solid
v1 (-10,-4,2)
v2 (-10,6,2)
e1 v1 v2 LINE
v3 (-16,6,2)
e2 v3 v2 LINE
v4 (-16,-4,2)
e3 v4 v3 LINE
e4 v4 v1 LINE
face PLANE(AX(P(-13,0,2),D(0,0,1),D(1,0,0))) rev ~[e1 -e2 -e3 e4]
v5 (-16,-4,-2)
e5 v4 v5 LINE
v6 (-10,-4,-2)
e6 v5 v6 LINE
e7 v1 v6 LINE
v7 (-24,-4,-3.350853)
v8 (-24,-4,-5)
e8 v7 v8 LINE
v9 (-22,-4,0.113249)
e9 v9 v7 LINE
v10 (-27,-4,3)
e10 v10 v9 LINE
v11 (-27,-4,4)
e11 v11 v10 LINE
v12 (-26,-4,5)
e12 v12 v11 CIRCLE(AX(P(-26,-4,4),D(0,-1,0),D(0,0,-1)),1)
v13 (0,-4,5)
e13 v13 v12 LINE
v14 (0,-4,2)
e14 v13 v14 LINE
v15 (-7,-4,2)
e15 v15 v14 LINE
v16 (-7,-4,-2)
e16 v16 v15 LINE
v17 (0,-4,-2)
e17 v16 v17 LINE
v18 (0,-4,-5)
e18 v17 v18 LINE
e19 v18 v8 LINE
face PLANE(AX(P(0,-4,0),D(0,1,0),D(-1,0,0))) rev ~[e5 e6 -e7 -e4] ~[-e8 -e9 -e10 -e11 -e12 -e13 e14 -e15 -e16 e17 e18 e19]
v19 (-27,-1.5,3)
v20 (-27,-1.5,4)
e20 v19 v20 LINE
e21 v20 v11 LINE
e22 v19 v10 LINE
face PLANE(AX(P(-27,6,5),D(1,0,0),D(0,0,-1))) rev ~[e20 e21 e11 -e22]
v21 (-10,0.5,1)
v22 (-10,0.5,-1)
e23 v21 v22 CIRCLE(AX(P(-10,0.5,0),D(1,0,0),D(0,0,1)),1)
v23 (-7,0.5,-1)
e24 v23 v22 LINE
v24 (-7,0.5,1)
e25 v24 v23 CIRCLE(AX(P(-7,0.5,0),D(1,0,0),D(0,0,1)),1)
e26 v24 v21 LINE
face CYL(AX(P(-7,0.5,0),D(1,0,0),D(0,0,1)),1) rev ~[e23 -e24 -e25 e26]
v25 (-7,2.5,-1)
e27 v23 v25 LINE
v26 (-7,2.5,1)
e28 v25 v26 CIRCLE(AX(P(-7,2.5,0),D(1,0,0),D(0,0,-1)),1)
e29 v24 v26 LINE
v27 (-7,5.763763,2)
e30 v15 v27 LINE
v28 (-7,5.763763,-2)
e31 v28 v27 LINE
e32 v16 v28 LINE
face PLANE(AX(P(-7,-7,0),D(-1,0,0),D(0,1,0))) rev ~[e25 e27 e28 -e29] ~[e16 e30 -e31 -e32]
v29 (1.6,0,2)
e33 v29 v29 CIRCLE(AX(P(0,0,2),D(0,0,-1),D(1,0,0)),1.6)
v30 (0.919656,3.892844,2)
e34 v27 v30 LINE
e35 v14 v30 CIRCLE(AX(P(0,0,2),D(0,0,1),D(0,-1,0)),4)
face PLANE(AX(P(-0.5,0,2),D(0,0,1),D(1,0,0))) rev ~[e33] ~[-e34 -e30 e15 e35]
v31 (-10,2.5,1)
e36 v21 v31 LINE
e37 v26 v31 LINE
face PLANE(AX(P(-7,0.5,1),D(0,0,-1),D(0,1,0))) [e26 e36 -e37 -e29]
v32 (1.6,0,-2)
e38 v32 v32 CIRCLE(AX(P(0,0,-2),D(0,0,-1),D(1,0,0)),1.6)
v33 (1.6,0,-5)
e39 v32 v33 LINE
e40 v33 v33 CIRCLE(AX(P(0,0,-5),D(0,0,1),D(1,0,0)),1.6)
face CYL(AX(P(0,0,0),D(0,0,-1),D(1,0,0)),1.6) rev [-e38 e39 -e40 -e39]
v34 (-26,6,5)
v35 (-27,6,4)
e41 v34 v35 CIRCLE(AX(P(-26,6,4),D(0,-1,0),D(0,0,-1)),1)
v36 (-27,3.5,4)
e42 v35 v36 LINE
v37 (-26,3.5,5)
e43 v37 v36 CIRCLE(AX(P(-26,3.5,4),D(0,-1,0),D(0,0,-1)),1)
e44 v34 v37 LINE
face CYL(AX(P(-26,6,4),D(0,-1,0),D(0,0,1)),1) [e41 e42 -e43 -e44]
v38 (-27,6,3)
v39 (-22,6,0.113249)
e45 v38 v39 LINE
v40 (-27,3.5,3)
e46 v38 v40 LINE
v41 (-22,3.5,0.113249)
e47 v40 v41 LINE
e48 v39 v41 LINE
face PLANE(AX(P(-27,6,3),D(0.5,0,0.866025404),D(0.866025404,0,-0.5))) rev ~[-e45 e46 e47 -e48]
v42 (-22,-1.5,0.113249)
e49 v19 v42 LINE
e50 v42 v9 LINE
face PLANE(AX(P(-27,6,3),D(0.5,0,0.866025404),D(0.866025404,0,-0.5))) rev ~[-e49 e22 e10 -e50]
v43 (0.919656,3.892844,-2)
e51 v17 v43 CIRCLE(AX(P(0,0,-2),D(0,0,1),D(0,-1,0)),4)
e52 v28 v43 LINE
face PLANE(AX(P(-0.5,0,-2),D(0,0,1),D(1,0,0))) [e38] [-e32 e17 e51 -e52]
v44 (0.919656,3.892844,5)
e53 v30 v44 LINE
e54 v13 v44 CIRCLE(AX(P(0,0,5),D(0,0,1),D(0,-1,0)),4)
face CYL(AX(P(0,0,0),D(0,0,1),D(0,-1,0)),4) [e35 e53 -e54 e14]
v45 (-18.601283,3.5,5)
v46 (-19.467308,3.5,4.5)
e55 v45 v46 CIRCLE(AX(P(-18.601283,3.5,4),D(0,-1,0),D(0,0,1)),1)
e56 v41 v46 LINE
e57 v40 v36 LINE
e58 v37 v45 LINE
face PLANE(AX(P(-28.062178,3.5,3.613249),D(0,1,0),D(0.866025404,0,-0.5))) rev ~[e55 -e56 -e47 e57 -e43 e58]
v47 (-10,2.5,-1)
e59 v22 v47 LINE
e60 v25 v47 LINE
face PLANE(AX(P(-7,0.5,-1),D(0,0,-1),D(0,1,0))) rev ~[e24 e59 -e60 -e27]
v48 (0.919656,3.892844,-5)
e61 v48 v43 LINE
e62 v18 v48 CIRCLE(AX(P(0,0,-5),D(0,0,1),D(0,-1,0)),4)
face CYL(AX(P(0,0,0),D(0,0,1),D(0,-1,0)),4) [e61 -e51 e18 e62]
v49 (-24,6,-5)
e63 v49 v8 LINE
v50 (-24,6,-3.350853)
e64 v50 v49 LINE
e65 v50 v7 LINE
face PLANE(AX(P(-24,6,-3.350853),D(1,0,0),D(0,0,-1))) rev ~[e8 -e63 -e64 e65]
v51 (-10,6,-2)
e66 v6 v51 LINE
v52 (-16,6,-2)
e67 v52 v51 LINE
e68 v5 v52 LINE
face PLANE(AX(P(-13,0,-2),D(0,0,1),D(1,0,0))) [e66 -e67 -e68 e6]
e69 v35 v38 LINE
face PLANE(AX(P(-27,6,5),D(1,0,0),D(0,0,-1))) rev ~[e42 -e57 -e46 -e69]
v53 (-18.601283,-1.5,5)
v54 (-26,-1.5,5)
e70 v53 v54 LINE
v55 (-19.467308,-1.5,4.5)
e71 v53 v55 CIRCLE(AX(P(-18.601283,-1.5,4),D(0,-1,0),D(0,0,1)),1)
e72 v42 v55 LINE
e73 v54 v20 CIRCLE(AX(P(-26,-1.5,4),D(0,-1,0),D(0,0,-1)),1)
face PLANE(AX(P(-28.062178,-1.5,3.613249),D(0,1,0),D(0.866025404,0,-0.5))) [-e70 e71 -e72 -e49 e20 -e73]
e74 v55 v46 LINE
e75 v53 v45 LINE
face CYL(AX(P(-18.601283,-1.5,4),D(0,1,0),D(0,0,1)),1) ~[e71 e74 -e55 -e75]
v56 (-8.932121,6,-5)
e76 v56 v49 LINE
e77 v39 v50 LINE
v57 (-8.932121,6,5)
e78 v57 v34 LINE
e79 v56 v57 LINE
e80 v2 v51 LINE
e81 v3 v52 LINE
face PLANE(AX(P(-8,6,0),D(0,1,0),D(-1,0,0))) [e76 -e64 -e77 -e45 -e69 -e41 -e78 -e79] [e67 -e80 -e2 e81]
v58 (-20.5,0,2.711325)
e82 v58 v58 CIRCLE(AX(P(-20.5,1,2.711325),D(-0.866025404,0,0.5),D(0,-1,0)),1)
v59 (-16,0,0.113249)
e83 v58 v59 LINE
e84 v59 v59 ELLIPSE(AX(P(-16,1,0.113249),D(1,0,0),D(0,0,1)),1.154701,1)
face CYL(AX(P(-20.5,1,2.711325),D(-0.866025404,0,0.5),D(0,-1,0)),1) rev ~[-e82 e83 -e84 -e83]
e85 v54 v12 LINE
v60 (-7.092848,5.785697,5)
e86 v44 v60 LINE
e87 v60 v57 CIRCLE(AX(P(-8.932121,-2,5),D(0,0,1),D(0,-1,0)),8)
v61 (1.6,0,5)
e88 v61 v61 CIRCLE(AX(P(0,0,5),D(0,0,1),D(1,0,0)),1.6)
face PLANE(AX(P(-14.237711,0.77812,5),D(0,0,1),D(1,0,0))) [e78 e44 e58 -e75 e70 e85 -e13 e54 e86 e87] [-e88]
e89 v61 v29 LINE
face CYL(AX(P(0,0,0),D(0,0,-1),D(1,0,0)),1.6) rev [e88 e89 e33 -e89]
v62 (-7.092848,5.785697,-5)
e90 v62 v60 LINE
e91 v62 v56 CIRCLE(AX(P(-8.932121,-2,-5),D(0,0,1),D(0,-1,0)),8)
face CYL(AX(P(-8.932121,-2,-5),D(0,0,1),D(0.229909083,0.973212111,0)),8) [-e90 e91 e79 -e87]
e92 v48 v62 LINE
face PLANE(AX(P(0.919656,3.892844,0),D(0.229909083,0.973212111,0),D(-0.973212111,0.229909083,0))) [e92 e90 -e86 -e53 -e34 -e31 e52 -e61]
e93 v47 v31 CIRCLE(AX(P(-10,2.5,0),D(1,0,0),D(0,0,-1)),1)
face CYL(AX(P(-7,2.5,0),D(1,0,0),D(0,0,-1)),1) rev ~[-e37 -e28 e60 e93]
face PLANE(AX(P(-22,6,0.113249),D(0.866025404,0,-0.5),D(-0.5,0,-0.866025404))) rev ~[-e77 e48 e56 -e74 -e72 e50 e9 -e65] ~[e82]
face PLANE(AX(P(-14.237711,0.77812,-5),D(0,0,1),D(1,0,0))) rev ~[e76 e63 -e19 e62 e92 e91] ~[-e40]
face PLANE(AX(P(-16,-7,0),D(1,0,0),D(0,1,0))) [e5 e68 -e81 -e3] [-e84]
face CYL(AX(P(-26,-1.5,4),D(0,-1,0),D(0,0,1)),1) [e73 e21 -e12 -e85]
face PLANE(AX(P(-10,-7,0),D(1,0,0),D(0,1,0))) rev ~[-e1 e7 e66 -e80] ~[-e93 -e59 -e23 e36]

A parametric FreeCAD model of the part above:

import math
import FreeCAD as App
import Part
import Sketcher
from FreeCAD import Vector
Q = App.Units.Quantity


def edges_at(feature, points):
    """Names of the edges that pass closest to the given points."""
    edges = feature.Shape.Edges
    near = lambda p: min(range(len(edges)), key=lambda i: edges[i].distToShape(Part.Vertex(*p))[0])
    return sorted({f"Edge{near(p) + 1}" for p in points})


def add_polygon(sketch, points):
    """Adds a closed chain of lines whose ends are joined by coincident constraints."""
    first, n = sketch.GeometryCount, len(points)
    for a, b in zip(points, points[1:] + points[:1]):
        sketch.addGeometry(Part.LineSegment(App.Vector(*a, 0), App.Vector(*b, 0)), False)
    for i in range(n):
        sketch.addConstraint(Sketcher.Constraint("Coincident", first + i, 2, first + (i + 1) % n, 1))

doc = App.newDocument("Part")
params = doc.addObject("Spreadsheet::Sheet", "Params")
for row, (alias, value) in enumerate([
    ("sketch1_width", "13 mm"),
    ("sketch1_width2", "6 mm"),
    ("sketch1_height", "14 mm"),
    ("pad1_length", "4 mm"),
    ("sketch2_radius", "4 mm"),
    ("sketch2_diameter", "3.2 mm"),
    ("sketch2_width", "22 mm"),
    ("sketch2_width2", "30 mm"),
    ("sketch2_height", "10 mm"),
    ("pad2_length", "10 mm"),
    ("sketch3_width", "6 mm"),
    ("sketch3_width2", "3 mm"),
    ("sketch3_height", "10 mm"),
    ("sketch3_height2", "2 mm"),
    ("sketch3_length", "4 mm"),
    ("sketch4_width", "7 mm"),
    ("sketch4_height", "5 mm"),
    ("sketch5_diameter", "2 mm"),
    ("pocket3_length", "6 mm"),
    ("sketch6_radius", "1 mm"),
    ("sketch6_width", "2 mm"),
    ("pocket4_length", "3 mm"),
    ("fillet_radius", "8 mm"),
    ("fillet2_radius", "1 mm"),
    ("fillet3_radius", "1 mm"),
], start=1):
    params.set(f"A{row}", alias)
    params.set(f"B{row}", "=" + value)
    params.setAlias(f"B{row}", alias)

body = doc.addObject("PartDesign::Body", "Body")
body.AllowCompound = True

# Sketch on XY plane
sketch1 = body.newObject("Sketcher::SketchObject", "Sketch")
sketch1.AttachmentSupport = (doc.getObject("XY_Plane"), [""])
sketch1.MapMode = "FlatFace"
add_polygon(sketch1, [(-7, 7), (-7, -7), (6, -7), (6, 7)])  # lines 0-3
add_polygon(sketch1, [(-16, 7), (-16, -7), (-10, -7), (-10, 7)])  # lines 4-7
sketch1.addConstraint(Sketcher.Constraint("Vertical", 0))
sketch1.addConstraint(Sketcher.Constraint("Horizontal", 1))
sketch1.addConstraint(Sketcher.Constraint("Vertical", 2))
sketch1.addConstraint(Sketcher.Constraint("Horizontal", 3))
sketch1.addConstraint(Sketcher.Constraint("Vertical", 4))
sketch1.addConstraint(Sketcher.Constraint("Horizontal", 5))
sketch1.addConstraint(Sketcher.Constraint("Vertical", 6))
sketch1.addConstraint(Sketcher.Constraint("Horizontal", 7))
sketch1.addConstraint(Sketcher.Constraint("Horizontal", 1, 2, 4, 2))
sketch1.addConstraint(Sketcher.Constraint("Horizontal", 3, 2, 6, 2))
sketch1.addConstraint(Sketcher.Constraint("DistanceX", 1, 1, 1, 2, 13.0))
sketch1.addConstraint(Sketcher.Constraint("DistanceX", 5, 1, 5, 2, 6.0))
sketch1.addConstraint(Sketcher.Constraint("DistanceY", 0, 2, 0, 1, 14.0))
sketch1.addConstraint(Sketcher.Constraint("DistanceX", 0, 2, -1, 1, 7.0))
sketch1.addConstraint(Sketcher.Constraint("DistanceY", 0, 2, -1, 1, 7.0))
sketch1.addConstraint(Sketcher.Constraint("DistanceX", 4, 2, -1, 1, 16.0))
sketch1.setExpression("Constraints[18]", "Params.sketch1_width")
sketch1.setExpression("Constraints[19]", "Params.sketch1_width2")
sketch1.setExpression("Constraints[20]", "Params.sketch1_height")
pad1 = body.newObject("PartDesign::Pad", "Pad")
pad1.Profile = sketch1
pad1.setExpression("Length", "Params.pad1_length")
pad1.Midplane = True
body2 = doc.addObject("PartDesign::Body", "Body001")

# Sketch on XY plane
sketch2 = body2.newObject("Sketcher::SketchObject", "Sketch001")
sketch2.AttachmentSupport = (doc.getObject("XY_Plane001"), [""])
sketch2.MapMode = "FlatFace"
sketch2.addGeometry(Part.ArcOfCircle(Part.Circle(Vector(0, 0, 0), Vector(0, 0, 1), 4), math.radians(-90), math.radians(77)), False)
sketch2.addGeometry(Part.LineSegment(Vector(0.9, 3.9, 0), Vector(-8, 6, 0)), False)
sketch2.addGeometry(Part.LineSegment(Vector(-8, 6, 0), Vector(-30, 6, 0)), False)
sketch2.addGeometry(Part.LineSegment(Vector(-30, 6, 0), Vector(-30, -4, 0)), False)
sketch2.addGeometry(Part.LineSegment(Vector(-30, -4, 0), Vector(0, -4, 0)), False)
sketch2.addGeometry(Part.Circle(Vector(0, 0, 0), Vector(0, 0, 1), 1.6), False)
sketch2.addConstraint(Sketcher.Constraint("Coincident", 0, 2, 1, 1))
sketch2.addConstraint(Sketcher.Constraint("Coincident", 1, 2, 2, 1))
sketch2.addConstraint(Sketcher.Constraint("Coincident", 2, 2, 3, 1))
sketch2.addConstraint(Sketcher.Constraint("Coincident", 3, 2, 4, 1))
sketch2.addConstraint(Sketcher.Constraint("Tangent", 4, 2, 0, 1))
sketch2.addConstraint(Sketcher.Constraint("Horizontal", 2))
sketch2.addConstraint(Sketcher.Constraint("Vertical", 3))
sketch2.addConstraint(Sketcher.Constraint("Horizontal", 4))
sketch2.addConstraint(Sketcher.Constraint("Coincident", 0, 3, -1, 1))
sketch2.addConstraint(Sketcher.Constraint("Coincident", 5, 3, -1, 1))
sketch2.addConstraint(Sketcher.Constraint("Radius", 0, 4.0))
sketch2.addConstraint(Sketcher.Constraint("Diameter", 5, 3.2))
sketch2.addConstraint(Sketcher.Constraint("DistanceX", 2, 2, 2, 1, 22.0))
sketch2.addConstraint(Sketcher.Constraint("DistanceX", 4, 1, 4, 2, 30.0))
sketch2.addConstraint(Sketcher.Constraint("DistanceY", 3, 2, 3, 1, 10.0))
sketch2.addConstraint(Sketcher.Constraint("Distance", 1, 9.165171))
sketch2.setExpression("Constraints[10]", "Params.sketch2_radius")
sketch2.setExpression("Constraints[11]", "Params.sketch2_diameter")
sketch2.setExpression("Constraints[12]", "Params.sketch2_width")
sketch2.setExpression("Constraints[13]", "Params.sketch2_width2")
sketch2.setExpression("Constraints[14]", "Params.sketch2_height")
pad2 = body2.newObject("PartDesign::Pad", "Pad001")
pad2.Profile = sketch2
pad2.setExpression("Length", "Params.pad2_length")
pad2.Midplane = True

# Sketch on XZ plane
sketch3 = body2.newObject("Sketcher::SketchObject", "Sketch002")
sketch3.AttachmentSupport = (doc.getObject("XZ_Plane001"), [""])
sketch3.MapMode = "FlatFace"
sketch3.AttachmentOffset = App.Placement(Vector(0, 0, -6), App.Rotation())
add_polygon(sketch3, [(-22, 0.1), (-24, -3.4), (-24, -5), (-30, -5), (-30, 5), (-27, 5), (-27, 3)])  # lines 0-6
sketch3.addConstraint(Sketcher.Constraint("Vertical", 1))
sketch3.addConstraint(Sketcher.Constraint("Horizontal", 2))
sketch3.addConstraint(Sketcher.Constraint("Vertical", 3))
sketch3.addConstraint(Sketcher.Constraint("Horizontal", 4))
sketch3.addConstraint(Sketcher.Constraint("Vertical", 5))
sketch3.addConstraint(Sketcher.Constraint("Perpendicular", 0, 6))
sketch3.addConstraint(Sketcher.Constraint("DistanceX", 2, 2, 2, 1, 6.0))
sketch3.addConstraint(Sketcher.Constraint("DistanceX", 4, 1, 4, 2, 3.0))
sketch3.addConstraint(Sketcher.Constraint("DistanceY", 3, 1, 3, 2, 10.0))
sketch3.addConstraint(Sketcher.Constraint("DistanceY", 5, 2, 5, 1, 2.0))
sketch3.addConstraint(Sketcher.Constraint("Angle", 0, Q("-120 deg")))
sketch3.addConstraint(Sketcher.Constraint("Distance", 0, 4.0))
sketch3.addConstraint(Sketcher.Constraint("DistanceX", 0, 2, -1, 1, 24.0))
sketch3.addConstraint(Sketcher.Constraint("DistanceY", 1, 2, -1, 1, 5.0))
sketch3.setExpression("Constraints[13]", "Params.sketch3_width")
sketch3.setExpression("Constraints[14]", "Params.sketch3_width2")
sketch3.setExpression("Constraints[15]", "Params.sketch3_height")
sketch3.setExpression("Constraints[16]", "Params.sketch3_height2")
sketch3.setExpression("Constraints[18]", "Params.sketch3_length")
pocket1 = body2.newObject("PartDesign::Pocket", "Pocket")
pocket1.Profile = sketch3
pocket1.Type = "ThroughAll"
pocket1.Reversed = True
doc.recompute()

boolean = body2.newObject("PartDesign::Boolean", "Boolean")
boolean.Type = "Cut"
boolean.addObjects([body])

# Sketch on an angled plane
sketch4 = body2.newObject("Sketcher::SketchObject", "Sketch003")
sketch4.Placement = App.Placement(Vector(-5.450962, 0, -9.441343), App.Rotation(Vector(0.866025404, 0, -0.5), Vector(0, -1, 0), Vector(-0.5, 0, -0.866025404), "ZXY"))
add_polygon(sketch4, [(-26, 2), (-26, -4), (-19, -4), (-19, 2)])  # lines 0-3
sketch4.addConstraint(Sketcher.Constraint("Vertical", 0))
sketch4.addConstraint(Sketcher.Constraint("Horizontal", 1))
sketch4.addConstraint(Sketcher.Constraint("Vertical", 2))
sketch4.addConstraint(Sketcher.Constraint("Horizontal", 3))
sketch4.addConstraint(Sketcher.Constraint("DistanceX", 1, 1, 1, 2, 7.0))
sketch4.addConstraint(Sketcher.Constraint("DistanceY", 0, 2, 0, 1, 5.0))
sketch4.addConstraint(Sketcher.Constraint("DistanceY", 0, 2, -1, 1, 3.5))
sketch4.addConstraint(Sketcher.Constraint("DistanceX", 0, 2, -1, 1, 26.109183))
sketch4.setExpression("Constraints[8]", "Params.sketch4_width")
sketch4.setExpression("Constraints[9]", "Params.sketch4_height")
pocket2 = body2.newObject("PartDesign::Pocket", "Pocket001")
pocket2.Profile = sketch4
pocket2.Type = "ThroughAll"

# Sketch on an angled plane
sketch5 = body2.newObject("Sketcher::SketchObject", "Sketch004")
sketch5.Placement = App.Placement(Vector(-16.549038, 0, 9.554592), App.Rotation(Vector(0, -1, 0), Vector(0.5, 0, 0.866025404), Vector(-0.866025404, 0, 0.5), "ZXY"))
sketch5.addGeometry(Part.Circle(Vector(-1, -7.9, 0), Vector(0, 0, 1), 1), False)
sketch5.addConstraint(Sketcher.Constraint("Diameter", 0, 2.0))
sketch5.addConstraint(Sketcher.Constraint("DistanceX", 0, 3, -1, 1, 1.0))
sketch5.addConstraint(Sketcher.Constraint("DistanceY", 0, 3, -1, 1, 7.901924))
sketch5.setExpression("Constraints[0]", "Params.sketch5_diameter")
pocket3 = body2.newObject("PartDesign::Pocket", "Pocket002")
pocket3.Profile = sketch5
pocket3.setExpression("Length", "Params.pocket3_length")

# Sketch on YZ plane
sketch6 = body2.newObject("Sketcher::SketchObject", "Sketch005")
sketch6.AttachmentSupport = (doc.getObject("YZ_Plane001"), [""])
sketch6.MapMode = "FlatFace"
sketch6.AttachmentOffset = App.Placement(Vector(0, 0, -7), App.Rotation())
sketch6.addGeometry(Part.LineSegment(Vector(2.5, 1, 0), Vector(0.5, 1, 0)), False)
sketch6.addGeometry(Part.ArcOfCircle(Part.Circle(Vector(0.5, 0, 0), Vector(0, 0, 1), 1), math.radians(90), math.radians(270)), False)
sketch6.addGeometry(Part.LineSegment(Vector(0.5, -1, 0), Vector(2.5, -1, 0)), False)
sketch6.addGeometry(Part.ArcOfCircle(Part.Circle(Vector(2.5, 0, 0), Vector(0, 0, 1), 1), math.radians(-90), math.radians(90)), False)
sketch6.addConstraint(Sketcher.Constraint("Tangent", 0, 2, 1, 1))
sketch6.addConstraint(Sketcher.Constraint("Tangent", 1, 2, 2, 1))
sketch6.addConstraint(Sketcher.Constraint("Tangent", 2, 2, 3, 1))
sketch6.addConstraint(Sketcher.Constraint("Tangent", 3, 2, 0, 1))
sketch6.addConstraint(Sketcher.Constraint("Horizontal", 0))
sketch6.addConstraint(Sketcher.Constraint("Horizontal", 2))
sketch6.addConstraint(Sketcher.Constraint("PointOnObject", 1, 3, -1))
sketch6.addConstraint(Sketcher.Constraint("Radius", 1, 1.0))
sketch6.addConstraint(Sketcher.Constraint("DistanceX", 0, 2, 0, 1, 2.0))
sketch6.addConstraint(Sketcher.Constraint("DistanceX", -1, 1, 1, 3, 0.5))
sketch6.setExpression("Constraints[7]", "Params.sketch6_radius")
sketch6.setExpression("Constraints[8]", "Params.sketch6_width")
pocket4 = body2.newObject("PartDesign::Pocket", "Pocket003")
pocket4.Profile = sketch6
pocket4.setExpression("Length", "Params.pocket4_length")
doc.recompute()

fillet = body2.newObject("PartDesign::Fillet", "Fillet")
fillet.Base = (pocket4, edges_at(pocket4, [(-8, 6, 0)]))
fillet.setExpression("Radius", "Params.fillet_radius")
doc.recompute()

fillet2 = body2.newObject("PartDesign::Fillet", "Fillet001")
fillet2.Base = (fillet, edges_at(fillet, [(-27, 4.75, 5), (-27, -2.75, 5)]))
fillet2.setExpression("Radius", "Params.fillet2_radius")
doc.recompute()

fillet3 = body2.newObject("PartDesign::Fillet", "Fillet002")
fillet3.Base = (fillet2, edges_at(fillet2, [(-19.179, 1, 5)]))
fillet3.setExpression("Radius", "Params.fillet3_radius")

doc.recompute()
